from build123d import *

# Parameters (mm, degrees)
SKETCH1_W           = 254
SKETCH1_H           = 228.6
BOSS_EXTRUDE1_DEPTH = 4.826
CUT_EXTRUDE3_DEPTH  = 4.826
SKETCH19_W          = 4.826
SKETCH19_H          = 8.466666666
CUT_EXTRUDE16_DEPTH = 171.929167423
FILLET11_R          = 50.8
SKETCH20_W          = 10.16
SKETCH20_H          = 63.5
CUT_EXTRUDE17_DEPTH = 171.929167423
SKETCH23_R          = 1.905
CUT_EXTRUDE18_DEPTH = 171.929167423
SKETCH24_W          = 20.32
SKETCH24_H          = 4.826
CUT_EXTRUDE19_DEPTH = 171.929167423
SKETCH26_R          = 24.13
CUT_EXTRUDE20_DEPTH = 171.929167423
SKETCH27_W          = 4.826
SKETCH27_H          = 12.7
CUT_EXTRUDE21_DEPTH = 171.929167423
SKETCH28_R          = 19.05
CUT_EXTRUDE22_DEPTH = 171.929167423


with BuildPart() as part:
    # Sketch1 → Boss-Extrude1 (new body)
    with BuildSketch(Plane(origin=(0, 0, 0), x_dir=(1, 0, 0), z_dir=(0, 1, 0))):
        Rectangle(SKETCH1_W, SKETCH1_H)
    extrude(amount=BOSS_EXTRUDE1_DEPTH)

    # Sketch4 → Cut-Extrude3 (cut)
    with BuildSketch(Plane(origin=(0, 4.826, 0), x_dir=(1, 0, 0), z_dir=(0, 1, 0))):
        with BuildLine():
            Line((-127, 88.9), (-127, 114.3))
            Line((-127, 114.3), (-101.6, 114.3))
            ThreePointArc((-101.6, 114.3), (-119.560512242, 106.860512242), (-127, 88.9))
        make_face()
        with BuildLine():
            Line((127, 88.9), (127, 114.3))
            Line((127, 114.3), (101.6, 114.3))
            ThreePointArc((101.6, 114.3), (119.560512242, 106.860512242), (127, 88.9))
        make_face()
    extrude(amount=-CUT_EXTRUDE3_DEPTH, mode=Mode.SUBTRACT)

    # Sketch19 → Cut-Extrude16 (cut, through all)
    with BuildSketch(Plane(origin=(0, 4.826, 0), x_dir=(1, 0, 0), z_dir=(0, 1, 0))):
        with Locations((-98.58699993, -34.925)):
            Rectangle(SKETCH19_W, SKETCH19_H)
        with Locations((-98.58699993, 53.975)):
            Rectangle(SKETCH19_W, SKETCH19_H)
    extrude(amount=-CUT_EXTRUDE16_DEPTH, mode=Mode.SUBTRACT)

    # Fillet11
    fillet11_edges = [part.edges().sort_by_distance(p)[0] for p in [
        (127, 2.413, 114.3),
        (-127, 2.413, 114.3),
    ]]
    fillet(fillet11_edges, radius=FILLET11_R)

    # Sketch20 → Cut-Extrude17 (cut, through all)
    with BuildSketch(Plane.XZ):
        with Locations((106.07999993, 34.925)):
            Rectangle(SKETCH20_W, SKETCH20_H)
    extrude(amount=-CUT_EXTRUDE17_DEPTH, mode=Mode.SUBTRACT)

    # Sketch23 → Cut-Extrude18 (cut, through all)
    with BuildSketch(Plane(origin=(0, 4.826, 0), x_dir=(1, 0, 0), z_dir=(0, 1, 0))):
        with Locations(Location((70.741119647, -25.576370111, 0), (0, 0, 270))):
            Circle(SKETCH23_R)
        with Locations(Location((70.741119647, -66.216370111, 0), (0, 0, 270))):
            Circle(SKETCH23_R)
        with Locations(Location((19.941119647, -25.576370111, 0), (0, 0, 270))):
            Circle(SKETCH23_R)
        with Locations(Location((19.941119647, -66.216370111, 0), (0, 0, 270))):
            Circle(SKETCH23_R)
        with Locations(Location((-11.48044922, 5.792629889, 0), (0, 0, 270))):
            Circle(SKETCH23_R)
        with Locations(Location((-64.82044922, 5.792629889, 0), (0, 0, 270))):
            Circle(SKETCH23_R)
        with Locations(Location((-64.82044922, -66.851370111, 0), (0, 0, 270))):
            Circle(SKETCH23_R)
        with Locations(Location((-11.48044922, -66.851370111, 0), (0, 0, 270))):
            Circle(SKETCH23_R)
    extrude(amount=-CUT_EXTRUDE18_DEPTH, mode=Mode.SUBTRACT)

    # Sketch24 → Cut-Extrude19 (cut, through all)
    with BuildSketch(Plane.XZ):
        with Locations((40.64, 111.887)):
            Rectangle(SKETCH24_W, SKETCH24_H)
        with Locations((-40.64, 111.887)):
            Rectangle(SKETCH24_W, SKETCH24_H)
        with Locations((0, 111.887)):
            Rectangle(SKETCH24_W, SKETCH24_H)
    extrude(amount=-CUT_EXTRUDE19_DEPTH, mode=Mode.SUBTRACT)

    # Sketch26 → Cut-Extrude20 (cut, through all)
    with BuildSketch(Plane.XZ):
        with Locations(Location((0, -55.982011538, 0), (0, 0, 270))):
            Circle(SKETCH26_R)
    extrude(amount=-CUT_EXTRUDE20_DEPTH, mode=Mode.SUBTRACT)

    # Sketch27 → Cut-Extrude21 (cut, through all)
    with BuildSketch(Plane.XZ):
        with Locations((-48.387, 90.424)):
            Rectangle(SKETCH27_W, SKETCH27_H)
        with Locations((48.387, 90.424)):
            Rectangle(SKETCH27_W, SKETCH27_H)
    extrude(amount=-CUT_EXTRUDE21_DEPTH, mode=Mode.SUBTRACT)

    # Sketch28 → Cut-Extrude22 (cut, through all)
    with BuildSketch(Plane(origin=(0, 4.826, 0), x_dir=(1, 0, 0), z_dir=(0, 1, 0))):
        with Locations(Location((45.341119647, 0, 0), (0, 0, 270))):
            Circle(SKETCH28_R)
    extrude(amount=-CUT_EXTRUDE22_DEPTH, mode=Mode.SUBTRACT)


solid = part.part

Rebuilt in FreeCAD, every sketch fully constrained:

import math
import FreeCAD as App
import Part
import Sketcher
Q = App.Units.Quantity


def edges_at(feature, points):
    """Names of the edges that pass closest to the given points."""
    edges = feature.Shape.Edges
    near = lambda p: min(range(len(edges)), key=lambda i: edges[i].distToShape(Part.Vertex(*p))[0])
    return sorted({f"Edge{near(p) + 1}" for p in points})


def add_polygon(sketch, points):
    """Adds a closed chain of lines whose ends are joined by coincident constraints."""
    first, n = sketch.GeometryCount, len(points)
    for a, b in zip(points, points[1:] + points[:1]):
        sketch.addGeometry(Part.LineSegment(App.Vector(*a, 0), App.Vector(*b, 0)), False)
    for i in range(n):
        sketch.addConstraint(Sketcher.Constraint("Coincident", first + i, 2, first + (i + 1) % n, 1))

doc = App.newDocument("Part")
body = doc.addObject("PartDesign::Body", "Body")

sketch1 = body.newObject("Sketcher::SketchObject", "Sketch")
sketch1.AttachmentSupport = (doc.getObject("XZ_Plane"), [""])
sketch1.MapMode = "FlatFace"
add_polygon(sketch1, [(-127, -114), (-127, 114), (127, 114), (127, -114)])
sketch1.addConstraint([
    Sketcher.Constraint("Vertical", 0),
    Sketcher.Constraint("Horizontal", 1),
    Sketcher.Constraint("Vertical", 2),
    Sketcher.Constraint("Horizontal", 3),
    Sketcher.Constraint("Symmetric", 0, 2, 2, 2, -1, 1),
    Sketcher.Constraint("DistanceX", 1, 1, 1, 2, Q("10 in")),
    Sketcher.Constraint("DistanceY", 0, 1, 0, 2, Q("9 in")),
])
pad1 = body.newObject("PartDesign::Pad", "Pad")
pad1.Profile = sketch1
pad1.Length = Q("0.19 in")
pad1.Reversed = True

sketch2 = body.newObject("Sketcher::SketchObject", "Sketch001")
sketch2.AttachmentSupport = (doc.getObject("XZ_Plane"), [""])
sketch2.MapMode = "FlatFace"
sketch2.AttachmentOffset = App.Placement(App.Vector(0, 0, -0.19 * 25.4), App.Rotation())
sketch2.addGeometry([
    Part.LineSegment(App.Vector(-127, -114, 0), App.Vector(-127, -89, 0)),
    Part.ArcOfCircle(Part.Circle(App.Vector(-102, -89, 0), App.Vector(0, 0, 1), 25), math.radians(180), math.radians(270)),
    Part.LineSegment(App.Vector(-102, -114, 0), App.Vector(-127, -114, 0)),
    Part.LineSegment(App.Vector(127, -89, 0), App.Vector(127, -114, 0)),
    Part.LineSegment(App.Vector(127, -114, 0), App.Vector(102, -114, 0)),
    Part.ArcOfCircle(Part.Circle(App.Vector(102, -89, 0), App.Vector(0, 0, 1), 25), math.radians(-90), math.radians(0)),
], False)
sketch2.addConstraint([
    Sketcher.Constraint("Tangent", 0, 2, 1, 1),
    Sketcher.Constraint("Tangent", 1, 2, 2, 1),
    Sketcher.Constraint("Coincident", 2, 2, 0, 1),
    Sketcher.Constraint("Coincident", 3, 2, 4, 1),
    Sketcher.Constraint("Tangent", 4, 2, 5, 1),
    Sketcher.Constraint("Tangent", 5, 2, 3, 1),
    Sketcher.Constraint("Vertical", 0),
    Sketcher.Constraint("Horizontal", 2),
    Sketcher.Constraint("Vertical", 3),
    Sketcher.Constraint("Horizontal", 4),
    Sketcher.Constraint("Equal", 1, 5),
    Sketcher.Constraint("Symmetric", 1, 3, 5, 3, -2),
    Sketcher.Constraint("Radius", 1, Q("1 in")),
    Sketcher.Constraint("DistanceX", 1, 3, -1, 1, Q("4 in")),
    Sketcher.Constraint("DistanceY", 1, 3, -1, 1, Q("3.5 in")),
])
pocket1 = body.newObject("PartDesign::Pocket", "Pocket")
pocket1.Profile = sketch2
pocket1.Length = Q("0.19 in")
pocket1.Reversed = True

sketch3 = body.newObject("Sketcher::SketchObject", "Sketch002")
sketch3.AttachmentSupport = (doc.getObject("XZ_Plane"), [""])
sketch3.MapMode = "FlatFace"
sketch3.AttachmentOffset = App.Placement(App.Vector(0, 0, -0.19 * 25.4), App.Rotation())
add_polygon(sketch3, [(-101, 30.7), (-101, 39.2), (-96.2, 39.2), (-96.2, 30.7)])
add_polygon(sketch3, [(-101, -58.2), (-101, -49.7), (-96.2, -49.7), (-96.2, -58.2)])
sketch3.addConstraint([
    Sketcher.Constraint("Vertical", 0),
    Sketcher.Constraint("Horizontal", 1),
    Sketcher.Constraint("Vertical", 2),
    Sketcher.Constraint("Horizontal", 3),
    Sketcher.Constraint("Vertical", 4),
    Sketcher.Constraint("Horizontal", 5),
    Sketcher.Constraint("Vertical", 6),
    Sketcher.Constraint("Horizontal", 7),
    Sketcher.Constraint("Vertical", 3, 2, 4, 2),
    Sketcher.Constraint("Vertical", 2, 2, 5, 2),
    Sketcher.Constraint("Equal", 2, 4),
    Sketcher.Constraint("DistanceX", 1, 1, 1, 2, Q("0.19 in")),
    Sketcher.Constraint("DistanceY", 4, 2, 0, 2, Q("3.5 in")),
    Sketcher.Constraint("DistanceX", 0, 2, -1, 1, Q("101 mm")),
    Sketcher.Constraint("DistanceY", 0, 1, 0, 2, Q("8.466667 mm")),
    Sketcher.Constraint("DistanceY", -1, 1, 0, 2, Q("39.158333 mm")),
])
pocket2 = body.newObject("PartDesign::Pocket", "Pocket001")
pocket2.Profile = sketch3
pocket2.Type = "ThroughAll"
pocket2.Reversed = True
doc.recompute()

fillet = body.newObject("PartDesign::Fillet", "Fillet")
fillet.Base = (pocket2, edges_at(pocket2, [(127, 2.413, 114.3), (-127, 2.413, 114.3)]))
fillet.Radius = Q("2 in")

sketch4 = body.newObject("Sketcher::SketchObject", "Sketch003")
sketch4.AttachmentSupport = (doc.getObject("XZ_Plane"), [""])
sketch4.MapMode = "FlatFace"
add_polygon(sketch4, [(101, 67), (101, 3), (111, 3), (111, 67)])
sketch4.addConstraint([
    Sketcher.Constraint("Vertical", 0),
    Sketcher.Constraint("Horizontal", 1),
    Sketcher.Constraint("Vertical", 2),
    Sketcher.Constraint("Horizontal", 3),
    Sketcher.Constraint("DistanceX", 1, 1, 1, 2, Q("0.4 in")),
    Sketcher.Constraint("DistanceY", 0, 2, 0, 1, Q("2.5 in")),
    Sketcher.Constraint("DistanceY", -1, 1, 0, 2, Q("0.125 in")),
    Sketcher.Constraint("DistanceX", -1, 1, 0, 2, Q("101 mm")),
])
pocket3 = body.newObject("PartDesign::Pocket", "Pocket002")
pocket3.Profile = sketch4
pocket3.Type = "ThroughAll"

sketch5 = body.newObject("Sketcher::SketchObject", "Sketch004")
sketch5.AttachmentSupport = (doc.getObject("XZ_Plane"), [""])
sketch5.MapMode = "FlatFace"
sketch5.AttachmentOffset = App.Placement(App.Vector(0, 0, -0.19 * 25.4), App.Rotation())
sketch5.addGeometry([
    Part.Circle(App.Vector(70.7, 25.6, 0), App.Vector(0, 0, 1), 1.9),
    Part.Circle(App.Vector(70.7, 66.2, 0), App.Vector(0, 0, 1), 1.9),
    Part.Circle(App.Vector(19.9, 25.6, 0), App.Vector(0, 0, 1), 1.9),
    Part.Circle(App.Vector(19.9, 66.2, 0), App.Vector(0, 0, 1), 1.9),
    Part.Circle(App.Vector(-11.5, -5.8, 0), App.Vector(0, 0, 1), 1.9),
    Part.Circle(App.Vector(-64.8, -5.8, 0), App.Vector(0, 0, 1), 1.9),
    Part.Circle(App.Vector(-64.8, 66.9, 0), App.Vector(0, 0, 1), 1.9),
    Part.Circle(App.Vector(-11.5, 66.9, 0), App.Vector(0, 0, 1), 1.9),
], False)
sketch5.addConstraint([
    Sketcher.Constraint("Equal", 0, 1),
    Sketcher.Constraint("Equal", 1, 2),
    Sketcher.Constraint("Equal", 2, 3),
    Sketcher.Constraint("Equal", 3, 4),
    Sketcher.Constraint("Equal", 4, 5),
    Sketcher.Constraint("Equal", 5, 6),
    Sketcher.Constraint("Equal", 6, 7),
    Sketcher.Constraint("Horizontal", 0, 3, 2, 3),
    Sketcher.Constraint("Horizontal", 1, 3, 3, 3),
    Sketcher.Constraint("Horizontal", 4, 3, 5, 3),
    Sketcher.Constraint("Horizontal", 6, 3, 7, 3),
    Sketcher.Constraint("Vertical", 0, 3, 1, 3),
    Sketcher.Constraint("Vertical", 2, 3, 3, 3),
    Sketcher.Constraint("Vertical", 5, 3, 6, 3),
    Sketcher.Constraint("Vertical", 4, 3, 7, 3),
    Sketcher.Constraint("Diameter", 0, Q("0.15 in")),
    Sketcher.Constraint("DistanceX", 2, 3, 0, 3, Q("2 in")),
    Sketcher.Constraint("DistanceY", 0, 3, 1, 3, Q("1.6 in")),
    Sketcher.Constraint("DistanceX", 5, 3, 4, 3, Q("2.1 in")),
    Sketcher.Constraint("DistanceY", 5, 3, 6, 3, Q("2.86 in")),
    Sketcher.Constraint("DistanceY", 4, 3, 2, 3, Q("1.235 in")),
    Sketcher.Constraint("DistanceX", -1, 1, 0, 3, Q("70.74112 mm")),
    Sketcher.Constraint("DistanceY", -1, 1, 0, 3, Q("25.57637 mm")),
    Sketcher.Constraint("DistanceX", 4, 3, -1, 1, Q("11.480449 mm")),
])
pocket4 = body.newObject("PartDesign::Pocket", "Pocket003")
pocket4.Profile = sketch5
pocket4.Type = "ThroughAll"
pocket4.Reversed = True

sketch6 = body.newObject("Sketcher::SketchObject", "Sketch005")
sketch6.AttachmentSupport = (doc.getObject("XZ_Plane"), [""])
sketch6.MapMode = "FlatFace"
add_polygon(sketch6, [(30.5, 114.3), (30.5, 109.5), (50.8, 109.5), (50.8, 114.3)])
add_polygon(sketch6, [(-50.8, 114.3), (-50.8, 109.5), (-30.5, 109.5), (-30.5, 114.3)])
add_polygon(sketch6, [(-10.2, 114.3), (-10.2, 109.5), (10.2, 109.5), (10.2, 114.3)])
sketch6.addConstraint([
    Sketcher.Constraint("Vertical", 0),
    Sketcher.Constraint("Horizontal", 1),
    Sketcher.Constraint("Vertical", 2),
    Sketcher.Constraint("Horizontal", 3),
    Sketcher.Constraint("Vertical", 4),
    Sketcher.Constraint("Horizontal", 5),
    Sketcher.Constraint("Vertical", 6),
    Sketcher.Constraint("Horizontal", 7),
    Sketcher.Constraint("Vertical", 8),
    Sketcher.Constraint("Horizontal", 9),
    Sketcher.Constraint("Vertical", 10),
    Sketcher.Constraint("Horizontal", 11),
    Sketcher.Constraint("Symmetric", 1, 2, 4, 2, -2),
    Sketcher.Constraint("Symmetric", 3, 2, 6, 2, -2),
    Sketcher.Constraint("Horizontal", 5, 2, 8, 2),
    Sketcher.Constraint("Horizontal", 7, 2, 10, 2),
    Sketcher.Constraint("Equal", 7, 9),
    Sketcher.Constraint("DistanceX", 1, 1, 1, 2, Q("0.8 in")),
    Sketcher.Constraint("DistanceX", -1, 1, 1, 2, Q("2 in")),
    Sketcher.Constraint("DistanceY", 0, 2, 0, 1, Q("0.19 in")),
    Sketcher.Constraint("DistanceY", -1, 1, 2, 2, Q("4.5 in")),
    Sketcher.Constraint("DistanceX", 8, 2, -1, 1, Q("0.4 in")),
])
pocket5 = body.newObject("PartDesign::Pocket", "Pocket004")
pocket5.Profile = sketch6
pocket5.Type = "ThroughAll"

sketch7 = body.newObject("Sketcher::SketchObject", "Sketch006")
sketch7.AttachmentSupport = (doc.getObject("XZ_Plane"), [""])
sketch7.MapMode = "FlatFace"
sketch7.addGeometry(Part.Circle(App.Vector(0, -56, 0), App.Vector(0, 0, 1), 24), False)
sketch7.addConstraint([
    Sketcher.Constraint("PointOnObject", 0, 3, -2),
    Sketcher.Constraint("Diameter", 0, Q("1.9 in")),
    Sketcher.Constraint("DistanceY", 0, 3, -1, 1, Q("55.982012 mm")),
])
pocket6 = body.newObject("PartDesign::Pocket", "Pocket005")
pocket6.Profile = sketch7
pocket6.Type = "ThroughAll"

sketch8 = body.newObject("Sketcher::SketchObject", "Sketch007")
sketch8.AttachmentSupport = (doc.getObject("XZ_Plane"), [""])
sketch8.MapMode = "FlatFace"
add_polygon(sketch8, [(-50.8, 96.8), (-50.8, 84.1), (-46, 84.1), (-46, 96.8)])
add_polygon(sketch8, [(46, 96.8), (46, 84.1), (50.8, 84.1), (50.8, 96.8)])
sketch8.addConstraint([
    Sketcher.Constraint("Vertical", 0),
    Sketcher.Constraint("Horizontal", 1),
    Sketcher.Constraint("Vertical", 2),
    Sketcher.Constraint("Horizontal", 3),
    Sketcher.Constraint("Vertical", 4),
    Sketcher.Constraint("Horizontal", 5),
    Sketcher.Constraint("Vertical", 6),
    Sketcher.Constraint("Horizontal", 7),
    Sketcher.Constraint("Symmetric", 1, 2, 4, 2, -2),
    Sketcher.Constraint("Symmetric", 3, 2, 6, 2, -2),
    Sketcher.Constraint("DistanceY", 0, 2, 0, 1, Q("0.5 in")),
    Sketcher.Constraint("DistanceX", 0, 2, -1, 1, Q("2 in")),
    Sketcher.Constraint("DistanceX", 1, 1, 1, 2, Q("0.19 in")),
    Sketcher.Constraint("DistanceY", -1, 1, 0, 2, Q("3.31 in")),
])
pocket7 = body.newObject("PartDesign::Pocket", "Pocket006")
pocket7.Profile = sketch8
pocket7.Type = "ThroughAll"

sketch9 = body.newObject("Sketcher::SketchObject", "Sketch008")
sketch9.AttachmentSupport = (doc.getObject("XZ_Plane"), [""])
sketch9.MapMode = "FlatFace"
sketch9.AttachmentOffset = App.Placement(App.Vector(0, 0, -0.19 * 25.4), App.Rotation())
sketch9.addGeometry(Part.Circle(App.Vector(45, 0, 0), App.Vector(0, 0, 1), 19), False)
sketch9.addConstraint([
    Sketcher.Constraint("PointOnObject", 0, 3, -1),
    Sketcher.Constraint("Diameter", 0, Q("1.5 in")),
    Sketcher.Constraint("DistanceX", -1, 1, 0, 3, Q("45.34112 mm")),
])
pocket8 = body.newObject("PartDesign::Pocket", "Pocket007")
pocket8.Profile = sketch9
pocket8.Type = "ThroughAll"
pocket8.Reversed = True

doc.recompute()
